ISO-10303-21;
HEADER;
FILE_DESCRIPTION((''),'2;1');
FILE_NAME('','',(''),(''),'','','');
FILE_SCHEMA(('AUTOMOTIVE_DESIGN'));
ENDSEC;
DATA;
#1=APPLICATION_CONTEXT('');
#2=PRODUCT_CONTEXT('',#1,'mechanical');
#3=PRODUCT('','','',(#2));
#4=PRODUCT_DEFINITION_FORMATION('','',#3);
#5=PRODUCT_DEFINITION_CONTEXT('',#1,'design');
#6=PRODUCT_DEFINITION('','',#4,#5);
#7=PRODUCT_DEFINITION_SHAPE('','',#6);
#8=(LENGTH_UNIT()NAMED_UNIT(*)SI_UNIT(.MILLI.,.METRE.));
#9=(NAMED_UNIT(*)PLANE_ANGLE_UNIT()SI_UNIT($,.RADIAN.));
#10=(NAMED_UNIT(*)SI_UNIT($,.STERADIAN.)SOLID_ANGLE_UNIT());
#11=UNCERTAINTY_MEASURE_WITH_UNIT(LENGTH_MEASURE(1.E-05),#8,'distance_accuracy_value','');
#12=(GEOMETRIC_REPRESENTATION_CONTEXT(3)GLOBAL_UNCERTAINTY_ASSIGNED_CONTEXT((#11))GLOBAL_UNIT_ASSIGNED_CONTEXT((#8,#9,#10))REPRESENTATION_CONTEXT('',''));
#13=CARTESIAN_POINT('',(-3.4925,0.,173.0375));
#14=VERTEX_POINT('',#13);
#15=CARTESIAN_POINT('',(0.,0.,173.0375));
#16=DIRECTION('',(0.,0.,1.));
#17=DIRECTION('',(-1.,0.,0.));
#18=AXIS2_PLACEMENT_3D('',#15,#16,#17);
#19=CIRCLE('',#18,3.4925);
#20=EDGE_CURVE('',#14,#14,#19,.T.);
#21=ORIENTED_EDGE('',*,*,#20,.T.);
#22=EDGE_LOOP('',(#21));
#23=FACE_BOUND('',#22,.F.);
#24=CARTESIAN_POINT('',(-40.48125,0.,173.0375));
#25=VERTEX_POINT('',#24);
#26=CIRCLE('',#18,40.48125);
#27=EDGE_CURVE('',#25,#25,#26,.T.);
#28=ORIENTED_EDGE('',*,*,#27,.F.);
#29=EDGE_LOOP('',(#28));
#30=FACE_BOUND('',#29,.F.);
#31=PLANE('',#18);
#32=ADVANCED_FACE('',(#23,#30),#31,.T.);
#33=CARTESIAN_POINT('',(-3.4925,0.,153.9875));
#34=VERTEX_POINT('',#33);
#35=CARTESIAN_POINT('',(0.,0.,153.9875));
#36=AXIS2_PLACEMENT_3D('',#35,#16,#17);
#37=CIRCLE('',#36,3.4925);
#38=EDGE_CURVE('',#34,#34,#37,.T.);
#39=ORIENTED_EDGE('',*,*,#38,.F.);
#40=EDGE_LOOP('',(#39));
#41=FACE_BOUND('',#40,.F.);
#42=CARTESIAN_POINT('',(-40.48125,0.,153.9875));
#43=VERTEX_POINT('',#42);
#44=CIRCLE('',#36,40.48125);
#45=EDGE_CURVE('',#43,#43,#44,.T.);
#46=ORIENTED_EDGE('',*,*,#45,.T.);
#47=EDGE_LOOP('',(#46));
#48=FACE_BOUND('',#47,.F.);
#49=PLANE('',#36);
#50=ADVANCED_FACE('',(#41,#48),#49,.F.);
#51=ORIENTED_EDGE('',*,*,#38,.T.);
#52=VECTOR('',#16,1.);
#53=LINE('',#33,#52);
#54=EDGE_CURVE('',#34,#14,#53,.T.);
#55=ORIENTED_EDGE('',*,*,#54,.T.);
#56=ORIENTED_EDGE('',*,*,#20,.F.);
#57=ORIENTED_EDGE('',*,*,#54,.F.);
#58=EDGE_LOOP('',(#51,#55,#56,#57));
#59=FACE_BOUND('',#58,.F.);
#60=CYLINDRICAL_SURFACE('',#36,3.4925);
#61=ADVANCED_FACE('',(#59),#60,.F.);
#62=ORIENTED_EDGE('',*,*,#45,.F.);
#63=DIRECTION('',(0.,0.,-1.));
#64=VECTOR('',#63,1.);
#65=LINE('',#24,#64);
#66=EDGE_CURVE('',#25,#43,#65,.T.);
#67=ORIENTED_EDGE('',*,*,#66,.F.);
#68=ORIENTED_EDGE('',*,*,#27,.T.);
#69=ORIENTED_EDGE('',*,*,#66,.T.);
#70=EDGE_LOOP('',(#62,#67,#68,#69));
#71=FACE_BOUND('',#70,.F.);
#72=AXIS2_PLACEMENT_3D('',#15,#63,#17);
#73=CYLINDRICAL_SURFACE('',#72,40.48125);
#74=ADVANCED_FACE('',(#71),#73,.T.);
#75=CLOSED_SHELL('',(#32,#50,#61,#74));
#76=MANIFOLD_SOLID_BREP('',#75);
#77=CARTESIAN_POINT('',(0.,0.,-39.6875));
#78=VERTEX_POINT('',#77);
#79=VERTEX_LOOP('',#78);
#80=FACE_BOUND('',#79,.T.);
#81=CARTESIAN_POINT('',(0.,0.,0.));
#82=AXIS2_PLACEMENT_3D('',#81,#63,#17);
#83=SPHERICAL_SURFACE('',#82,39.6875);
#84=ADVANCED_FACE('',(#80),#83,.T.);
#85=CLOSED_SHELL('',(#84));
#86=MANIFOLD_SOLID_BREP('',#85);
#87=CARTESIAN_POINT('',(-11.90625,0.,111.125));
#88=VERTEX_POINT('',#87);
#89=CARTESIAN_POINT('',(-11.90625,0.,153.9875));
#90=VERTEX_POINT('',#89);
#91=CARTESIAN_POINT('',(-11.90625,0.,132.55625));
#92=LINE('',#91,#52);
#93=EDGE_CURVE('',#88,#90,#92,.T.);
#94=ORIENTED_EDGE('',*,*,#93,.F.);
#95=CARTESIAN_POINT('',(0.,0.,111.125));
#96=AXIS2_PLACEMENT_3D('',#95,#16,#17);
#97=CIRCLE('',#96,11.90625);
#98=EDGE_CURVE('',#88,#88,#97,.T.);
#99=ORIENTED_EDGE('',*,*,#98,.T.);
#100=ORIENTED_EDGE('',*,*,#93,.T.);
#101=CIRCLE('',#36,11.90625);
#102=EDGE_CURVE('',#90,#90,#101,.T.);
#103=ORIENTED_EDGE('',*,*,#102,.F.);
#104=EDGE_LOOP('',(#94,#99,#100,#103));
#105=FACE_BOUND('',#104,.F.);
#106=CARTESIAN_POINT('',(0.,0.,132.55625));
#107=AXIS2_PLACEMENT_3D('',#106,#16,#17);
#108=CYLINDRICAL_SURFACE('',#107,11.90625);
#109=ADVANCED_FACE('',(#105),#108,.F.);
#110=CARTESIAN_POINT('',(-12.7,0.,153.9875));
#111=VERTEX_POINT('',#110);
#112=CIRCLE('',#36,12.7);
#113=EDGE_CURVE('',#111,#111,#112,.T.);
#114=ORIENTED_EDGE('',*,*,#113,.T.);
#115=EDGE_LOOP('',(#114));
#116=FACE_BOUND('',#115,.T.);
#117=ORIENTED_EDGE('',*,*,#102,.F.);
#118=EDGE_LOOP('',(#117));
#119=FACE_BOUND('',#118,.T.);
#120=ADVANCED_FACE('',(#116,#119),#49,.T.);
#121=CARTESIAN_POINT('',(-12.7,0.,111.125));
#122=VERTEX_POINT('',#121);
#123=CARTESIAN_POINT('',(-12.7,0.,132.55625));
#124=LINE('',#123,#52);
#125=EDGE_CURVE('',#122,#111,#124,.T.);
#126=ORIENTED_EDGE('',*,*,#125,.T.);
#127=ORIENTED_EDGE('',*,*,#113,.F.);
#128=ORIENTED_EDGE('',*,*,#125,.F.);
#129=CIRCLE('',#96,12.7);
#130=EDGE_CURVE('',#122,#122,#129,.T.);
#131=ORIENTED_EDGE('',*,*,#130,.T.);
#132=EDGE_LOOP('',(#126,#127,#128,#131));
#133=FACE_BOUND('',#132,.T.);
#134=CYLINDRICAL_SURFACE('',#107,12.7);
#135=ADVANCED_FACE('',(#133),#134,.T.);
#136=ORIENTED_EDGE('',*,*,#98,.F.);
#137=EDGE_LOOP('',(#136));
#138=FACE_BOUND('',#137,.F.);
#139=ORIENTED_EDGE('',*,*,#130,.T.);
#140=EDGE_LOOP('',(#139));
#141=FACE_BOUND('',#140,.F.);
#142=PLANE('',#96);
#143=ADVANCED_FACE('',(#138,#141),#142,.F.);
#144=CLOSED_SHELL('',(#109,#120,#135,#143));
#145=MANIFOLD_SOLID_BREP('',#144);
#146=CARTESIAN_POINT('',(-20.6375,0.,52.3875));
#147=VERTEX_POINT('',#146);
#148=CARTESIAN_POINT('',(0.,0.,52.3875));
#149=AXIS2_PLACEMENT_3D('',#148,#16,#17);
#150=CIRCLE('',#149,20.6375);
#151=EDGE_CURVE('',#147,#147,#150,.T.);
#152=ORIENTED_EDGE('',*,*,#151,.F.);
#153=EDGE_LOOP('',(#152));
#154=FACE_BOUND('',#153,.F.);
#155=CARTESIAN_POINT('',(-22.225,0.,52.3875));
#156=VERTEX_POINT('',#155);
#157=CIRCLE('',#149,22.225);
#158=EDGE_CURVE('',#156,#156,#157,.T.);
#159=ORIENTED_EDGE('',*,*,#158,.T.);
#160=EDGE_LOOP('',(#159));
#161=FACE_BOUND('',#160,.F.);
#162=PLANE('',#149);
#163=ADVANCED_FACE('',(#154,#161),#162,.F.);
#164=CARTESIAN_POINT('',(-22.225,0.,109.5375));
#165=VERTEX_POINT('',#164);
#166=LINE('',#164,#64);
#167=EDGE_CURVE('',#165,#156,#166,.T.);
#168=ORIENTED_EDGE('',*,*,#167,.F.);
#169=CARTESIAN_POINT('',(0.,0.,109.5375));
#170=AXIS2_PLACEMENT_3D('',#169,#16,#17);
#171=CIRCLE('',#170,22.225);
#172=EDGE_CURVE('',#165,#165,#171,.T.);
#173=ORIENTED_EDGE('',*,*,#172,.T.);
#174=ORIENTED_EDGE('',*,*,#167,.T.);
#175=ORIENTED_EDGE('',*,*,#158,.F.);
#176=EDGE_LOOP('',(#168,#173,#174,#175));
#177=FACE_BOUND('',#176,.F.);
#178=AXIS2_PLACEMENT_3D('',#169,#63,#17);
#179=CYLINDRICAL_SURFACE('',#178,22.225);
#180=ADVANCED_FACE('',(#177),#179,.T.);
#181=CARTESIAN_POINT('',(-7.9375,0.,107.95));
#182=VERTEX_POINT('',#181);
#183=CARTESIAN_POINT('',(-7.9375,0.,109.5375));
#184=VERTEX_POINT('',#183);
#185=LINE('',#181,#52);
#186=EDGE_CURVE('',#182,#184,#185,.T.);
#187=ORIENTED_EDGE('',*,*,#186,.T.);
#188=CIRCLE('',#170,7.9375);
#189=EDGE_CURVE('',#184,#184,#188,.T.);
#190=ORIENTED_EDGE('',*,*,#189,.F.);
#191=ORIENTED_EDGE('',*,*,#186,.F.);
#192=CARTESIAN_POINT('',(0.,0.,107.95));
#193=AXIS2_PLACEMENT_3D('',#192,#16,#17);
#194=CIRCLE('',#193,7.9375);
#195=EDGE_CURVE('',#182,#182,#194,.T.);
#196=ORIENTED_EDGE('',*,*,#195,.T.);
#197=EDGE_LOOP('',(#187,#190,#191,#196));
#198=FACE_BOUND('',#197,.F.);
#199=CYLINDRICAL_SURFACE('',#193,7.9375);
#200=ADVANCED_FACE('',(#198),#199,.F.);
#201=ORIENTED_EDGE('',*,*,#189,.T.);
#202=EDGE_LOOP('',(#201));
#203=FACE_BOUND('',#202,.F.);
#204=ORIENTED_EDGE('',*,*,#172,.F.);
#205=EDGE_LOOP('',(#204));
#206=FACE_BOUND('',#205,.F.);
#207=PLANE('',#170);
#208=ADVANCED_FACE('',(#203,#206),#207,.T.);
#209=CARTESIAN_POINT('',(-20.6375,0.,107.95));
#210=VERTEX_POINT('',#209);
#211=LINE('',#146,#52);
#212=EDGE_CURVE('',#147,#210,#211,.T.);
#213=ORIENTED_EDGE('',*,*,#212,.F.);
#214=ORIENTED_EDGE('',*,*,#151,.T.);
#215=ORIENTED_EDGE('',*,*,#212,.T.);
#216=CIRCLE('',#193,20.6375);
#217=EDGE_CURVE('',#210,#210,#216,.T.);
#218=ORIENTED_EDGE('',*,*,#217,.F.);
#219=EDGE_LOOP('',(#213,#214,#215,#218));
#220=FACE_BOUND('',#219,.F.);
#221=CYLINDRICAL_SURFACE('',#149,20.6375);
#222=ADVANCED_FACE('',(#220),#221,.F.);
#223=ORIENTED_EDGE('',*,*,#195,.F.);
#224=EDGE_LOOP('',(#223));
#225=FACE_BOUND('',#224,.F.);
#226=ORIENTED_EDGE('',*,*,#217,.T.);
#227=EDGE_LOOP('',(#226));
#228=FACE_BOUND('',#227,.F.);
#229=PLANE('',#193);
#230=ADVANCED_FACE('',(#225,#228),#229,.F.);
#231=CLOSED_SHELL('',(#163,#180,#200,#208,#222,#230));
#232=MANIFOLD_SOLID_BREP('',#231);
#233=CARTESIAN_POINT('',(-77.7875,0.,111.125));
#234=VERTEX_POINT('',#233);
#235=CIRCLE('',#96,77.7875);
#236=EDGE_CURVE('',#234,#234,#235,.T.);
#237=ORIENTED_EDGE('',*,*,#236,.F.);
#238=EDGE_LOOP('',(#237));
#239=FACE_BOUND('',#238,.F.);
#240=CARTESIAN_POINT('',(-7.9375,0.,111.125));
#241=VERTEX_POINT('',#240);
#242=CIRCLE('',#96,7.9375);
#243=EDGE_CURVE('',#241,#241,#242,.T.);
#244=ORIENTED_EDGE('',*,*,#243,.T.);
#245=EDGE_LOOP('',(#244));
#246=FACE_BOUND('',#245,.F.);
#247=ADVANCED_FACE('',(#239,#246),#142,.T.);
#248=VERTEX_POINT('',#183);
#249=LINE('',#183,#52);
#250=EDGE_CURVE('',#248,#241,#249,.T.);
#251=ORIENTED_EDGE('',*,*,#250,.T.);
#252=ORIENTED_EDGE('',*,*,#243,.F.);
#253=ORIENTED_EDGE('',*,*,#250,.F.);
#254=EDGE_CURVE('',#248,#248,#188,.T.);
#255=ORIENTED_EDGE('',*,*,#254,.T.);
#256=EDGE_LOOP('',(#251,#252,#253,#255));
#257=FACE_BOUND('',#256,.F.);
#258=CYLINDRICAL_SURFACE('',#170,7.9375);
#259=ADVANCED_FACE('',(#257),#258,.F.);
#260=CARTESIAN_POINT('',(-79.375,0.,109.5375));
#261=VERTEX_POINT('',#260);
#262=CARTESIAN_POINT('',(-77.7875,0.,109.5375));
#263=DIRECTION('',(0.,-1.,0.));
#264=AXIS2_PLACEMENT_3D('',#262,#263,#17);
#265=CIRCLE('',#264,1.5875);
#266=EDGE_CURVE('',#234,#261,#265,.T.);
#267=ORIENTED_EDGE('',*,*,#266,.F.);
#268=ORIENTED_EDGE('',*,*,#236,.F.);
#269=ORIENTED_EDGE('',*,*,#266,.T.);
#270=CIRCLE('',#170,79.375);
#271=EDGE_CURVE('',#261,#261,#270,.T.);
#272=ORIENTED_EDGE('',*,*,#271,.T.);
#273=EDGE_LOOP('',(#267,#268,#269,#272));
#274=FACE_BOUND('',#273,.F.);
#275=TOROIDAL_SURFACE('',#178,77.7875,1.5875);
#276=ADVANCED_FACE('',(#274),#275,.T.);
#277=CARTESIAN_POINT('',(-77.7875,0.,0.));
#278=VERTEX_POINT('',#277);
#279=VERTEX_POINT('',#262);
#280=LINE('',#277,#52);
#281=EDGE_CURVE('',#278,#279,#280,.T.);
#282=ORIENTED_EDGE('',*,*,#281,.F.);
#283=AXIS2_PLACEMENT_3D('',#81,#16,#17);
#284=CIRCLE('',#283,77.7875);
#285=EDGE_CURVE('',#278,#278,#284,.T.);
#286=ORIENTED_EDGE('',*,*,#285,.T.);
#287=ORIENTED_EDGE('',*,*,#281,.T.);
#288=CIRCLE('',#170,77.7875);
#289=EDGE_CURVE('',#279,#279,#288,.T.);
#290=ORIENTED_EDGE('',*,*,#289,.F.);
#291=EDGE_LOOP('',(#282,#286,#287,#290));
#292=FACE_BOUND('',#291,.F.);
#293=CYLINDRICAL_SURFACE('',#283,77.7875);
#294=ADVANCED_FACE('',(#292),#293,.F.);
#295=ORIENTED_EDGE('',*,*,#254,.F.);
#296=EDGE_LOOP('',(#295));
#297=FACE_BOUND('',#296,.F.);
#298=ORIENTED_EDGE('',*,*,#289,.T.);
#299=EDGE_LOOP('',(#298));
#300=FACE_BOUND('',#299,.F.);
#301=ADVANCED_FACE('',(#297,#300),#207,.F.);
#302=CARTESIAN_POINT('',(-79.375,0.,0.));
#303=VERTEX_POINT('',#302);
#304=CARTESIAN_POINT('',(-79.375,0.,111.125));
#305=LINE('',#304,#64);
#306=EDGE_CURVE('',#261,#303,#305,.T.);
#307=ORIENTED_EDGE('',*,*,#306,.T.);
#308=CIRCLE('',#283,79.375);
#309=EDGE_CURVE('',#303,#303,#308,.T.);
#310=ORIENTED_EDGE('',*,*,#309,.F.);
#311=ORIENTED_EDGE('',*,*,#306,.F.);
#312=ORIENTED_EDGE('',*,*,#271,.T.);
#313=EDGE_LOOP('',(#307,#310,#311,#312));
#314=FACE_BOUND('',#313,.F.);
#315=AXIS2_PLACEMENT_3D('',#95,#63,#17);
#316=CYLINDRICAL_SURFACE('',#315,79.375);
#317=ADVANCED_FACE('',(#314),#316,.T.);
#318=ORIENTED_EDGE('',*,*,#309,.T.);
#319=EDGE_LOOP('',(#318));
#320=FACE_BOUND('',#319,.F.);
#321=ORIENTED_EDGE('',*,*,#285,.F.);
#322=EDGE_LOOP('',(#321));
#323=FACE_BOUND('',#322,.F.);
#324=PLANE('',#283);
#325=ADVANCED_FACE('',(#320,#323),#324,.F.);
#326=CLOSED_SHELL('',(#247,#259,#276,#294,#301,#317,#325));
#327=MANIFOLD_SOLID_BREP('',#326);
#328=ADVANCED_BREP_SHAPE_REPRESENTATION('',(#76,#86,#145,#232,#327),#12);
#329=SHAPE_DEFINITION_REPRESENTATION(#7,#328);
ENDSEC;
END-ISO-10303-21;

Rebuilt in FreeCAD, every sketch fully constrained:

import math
import FreeCAD as App
import Part
import Sketcher

V = App.Vector
Q = App.Units.Quantity


def edges_at(feature, points):
    """Names of the edges that pass closest to the given points."""
    edges = feature.Shape.Edges
    near = lambda p: min(range(len(edges)), key=lambda i: edges[i].distToShape(Part.Vertex(*p))[0])
    return sorted({f"Edge{near(p) + 1}" for p in points})

doc = App.newDocument("Part")
params = doc.addObject("Spreadsheet::Sheet", "Params")
for row, (alias, value) in enumerate([
    ("sketch1_radius", "1.5625 in"),
    ("revolution_angle", "360 deg"),
    ("sketch2_width", "2.75 in"),
    ("sketch2_width2", "0.0625 in"),
    ("sketch2_height", "4.3125 in"),
    ("revolution2_angle", "360 deg"),
    ("fillet_radius", "0.0625 in"),
    ("sketch3_width", "0.5 in"),
    ("sketch3_height", "2.25 in"),
    ("sketch3_width2", "0.5625 in"),
    ("revolution3_angle", "360 deg"),
    ("sketch4_width", "0.03125 in"),
    ("sketch4_height", "1.6875 in"),
    ("revolution4_angle", "360 deg"),
    ("sketch5_height", "0.75 in"),
    ("revolution5_angle", "360 deg"),
], start=1):
    params.set(f"A{row}", alias)
    params.set(f"B{row}", "=" + value)
    params.setAlias(f"B{row}", alias)

body = doc.addObject("PartDesign::Body", "Body")

sketch1 = doc.addObject("Sketcher::SketchObject", "Sketch")
body.addObject(sketch1)
sketch1.AttachmentSupport = (doc.XZ_Plane, [""])
sketch1.MapMode = "FlatFace"
sketch1.addGeometry(Part.LineSegment(V(0, -40, 0), V(0, 40, 0)), False)
sketch1.addGeometry(Part.ArcOfCircle(Part.Circle(V(0, 0, 0), V(0, 0, 1), 40), math.radians(90), math.radians(270)), False)
sketch1.addConstraint(Sketcher.Constraint("Coincident", 0, 1, 1, 2))
sketch1.addConstraint(Sketcher.Constraint("Coincident", 1, 1, 0, 2))
sketch1.addConstraint(Sketcher.Constraint("Vertical", 0))
sketch1.addConstraint(Sketcher.Constraint("Coincident", 1, 3, -1, 1))
sketch1.addConstraint(Sketcher.Constraint("PointOnObject", 0, 1, -2))
sketch1.addConstraint(Sketcher.Constraint("Radius", 1, Q("1.5625 in")))
sketch1.setExpression("Constraints[5]", "Params.sketch1_radius")
revolution = doc.addObject("PartDesign::Revolution", "Revolution")
body.addObject(revolution)
revolution.Profile = sketch1
revolution.ReferenceAxis = (sketch1, ["V_Axis"])
revolution.setExpression("Angle", "Params.revolution_angle")
body2 = doc.addObject("PartDesign::Body", "Body001")

sketch2 = doc.addObject("Sketcher::SketchObject", "Sketch001")
body2.addObject(sketch2)
sketch2.AttachmentSupport = (doc.getObject("XZ_Plane001"), [""])
sketch2.MapMode = "FlatFace"
sketch2.addGeometry(Part.LineSegment(V(-79.4, 0, 0), V(-77.8, 0, 0)), False)
sketch2.addGeometry(Part.LineSegment(V(-77.8, 0, 0), V(-77.8, 109.5, 0)), False)
sketch2.addGeometry(Part.LineSegment(V(-77.8, 109.5, 0), V(-7.9, 109.5, 0)), False)
sketch2.addGeometry(Part.LineSegment(V(-7.9, 109.5, 0), V(-7.9, 111.1, 0)), False)
sketch2.addGeometry(Part.LineSegment(V(-7.9, 111.1, 0), V(-79.4, 111.1, 0)), False)
sketch2.addGeometry(Part.LineSegment(V(-79.4, 111.1, 0), V(-79.4, 0, 0)), False)
sketch2.addConstraint(Sketcher.Constraint("Coincident", 0, 2, 1, 1))
sketch2.addConstraint(Sketcher.Constraint("Coincident", 1, 2, 2, 1))
sketch2.addConstraint(Sketcher.Constraint("Coincident", 2, 2, 3, 1))
sketch2.addConstraint(Sketcher.Constraint("Coincident", 3, 2, 4, 1))
sketch2.addConstraint(Sketcher.Constraint("Coincident", 4, 2, 5, 1))
sketch2.addConstraint(Sketcher.Constraint("Coincident", 5, 2, 0, 1))
sketch2.addConstraint(Sketcher.Constraint("Horizontal", 0))
sketch2.addConstraint(Sketcher.Constraint("Vertical", 1))
sketch2.addConstraint(Sketcher.Constraint("Horizontal", 2))
sketch2.addConstraint(Sketcher.Constraint("Vertical", 3))
sketch2.addConstraint(Sketcher.Constraint("Horizontal", 4))
sketch2.addConstraint(Sketcher.Constraint("Vertical", 5))
sketch2.addConstraint(Sketcher.Constraint("PointOnObject", 0, 2, -1))
sketch2.addConstraint(Sketcher.Constraint("Equal", 0, 3))
sketch2.addConstraint(Sketcher.Constraint("DistanceX", 2, 1, 2, 2, Q("2.75 in")))
sketch2.addConstraint(Sketcher.Constraint("DistanceX", 0, 1, 0, 2, Q("0.0625 in")))
sketch2.addConstraint(Sketcher.Constraint("DistanceY", 1, 1, 1, 2, Q("4.3125 in")))
sketch2.addConstraint(Sketcher.Constraint("DistanceX", 0, 2, -1, 1, Q("3.0625 in")))
sketch2.setExpression("Constraints[14]", "Params.sketch2_width")
sketch2.setExpression("Constraints[15]", "Params.sketch2_width2")
sketch2.setExpression("Constraints[16]", "Params.sketch2_height")
revolution2 = doc.addObject("PartDesign::Revolution", "Revolution001")
body2.addObject(revolution2)
revolution2.Profile = sketch2
revolution2.ReferenceAxis = (sketch2, ["V_Axis"])
revolution2.setExpression("Angle", "Params.revolution2_angle")
doc.recompute()

fillet = doc.addObject("PartDesign::Fillet", "Fillet")
body2.addObject(fillet)
fillet.Base = (revolution2, edges_at(revolution2, [(79.375, 0, 111.125)]))
fillet.setExpression("Radius", "Params.fillet_radius")
body3 = doc.addObject("PartDesign::Body", "Body002")

sketch3 = doc.addObject("Sketcher::SketchObject", "Sketch002")
body3.addObject(sketch3)
sketch3.AttachmentSupport = (doc.getObject("XZ_Plane002"), [""])
sketch3.MapMode = "FlatFace"
sketch3.addGeometry(Part.LineSegment(V(-7.9, 109.5, 0), V(-22.2, 109.5, 0)), False)
sketch3.addGeometry(Part.LineSegment(V(-22.2, 109.5, 0), V(-22.2, 52.4, 0)), False)
sketch3.addGeometry(Part.LineSegment(V(-22.2, 52.4, 0), V(-20.6, 52.4, 0)), False)
sketch3.addGeometry(Part.LineSegment(V(-20.6, 52.4, 0), V(-20.6, 108, 0)), False)
sketch3.addGeometry(Part.LineSegment(V(-20.6, 108, 0), V(-7.9, 108, 0)), False)
sketch3.addGeometry(Part.LineSegment(V(-7.9, 108, 0), V(-7.9, 109.5, 0)), False)
sketch3.addConstraint(Sketcher.Constraint("Coincident", 0, 2, 1, 1))
sketch3.addConstraint(Sketcher.Constraint("Coincident", 1, 2, 2, 1))
sketch3.addConstraint(Sketcher.Constraint("Coincident", 2, 2, 3, 1))
sketch3.addConstraint(Sketcher.Constraint("Coincident", 3, 2, 4, 1))
sketch3.addConstraint(Sketcher.Constraint("Coincident", 4, 2, 5, 1))
sketch3.addConstraint(Sketcher.Constraint("Coincident", 5, 2, 0, 1))
sketch3.addConstraint(Sketcher.Constraint("Horizontal", 0))
sketch3.addConstraint(Sketcher.Constraint("Vertical", 1))
sketch3.addConstraint(Sketcher.Constraint("Horizontal", 2))
sketch3.addConstraint(Sketcher.Constraint("Vertical", 3))
sketch3.addConstraint(Sketcher.Constraint("Horizontal", 4))
sketch3.addConstraint(Sketcher.Constraint("Vertical", 5))
sketch3.addConstraint(Sketcher.Constraint("Equal", 2, 5))
sketch3.addConstraint(Sketcher.Constraint("DistanceX", 4, 1, 4, 2, Q("0.5 in")))
sketch3.addConstraint(Sketcher.Constraint("DistanceY", 1, 2, 1, 1, Q("2.25 in")))
sketch3.addConstraint(Sketcher.Constraint("DistanceX", 0, 2, 0, 1, Q("0.5625 in")))
sketch3.addConstraint(Sketcher.Constraint("DistanceY", -1, 1, 3, 2, Q("4.25 in")))
sketch3.addConstraint(Sketcher.Constraint("DistanceX", 0, 2, -1, 1, Q("0.875 in")))
sketch3.setExpression("Constraints[13]", "Params.sketch3_width")
sketch3.setExpression("Constraints[14]", "Params.sketch3_height")
sketch3.setExpression("Constraints[15]", "Params.sketch3_width2")
revolution3 = doc.addObject("PartDesign::Revolution", "Revolution002")
body3.addObject(revolution3)
revolution3.Profile = sketch3
revolution3.ReferenceAxis = (sketch3, ["V_Axis"])
revolution3.setExpression("Angle", "Params.revolution3_angle")
body4 = doc.addObject("PartDesign::Body", "Body003")

sketch4 = doc.addObject("Sketcher::SketchObject", "Sketch003")
body4.addObject(sketch4)
sketch4.AttachmentSupport = (doc.getObject("XZ_Plane003"), [""])
sketch4.MapMode = "FlatFace"
sketch4.addGeometry(Part.LineSegment(V(-12.7, 154, 0), V(-12.7, 111.1, 0)), False)
sketch4.addGeometry(Part.LineSegment(V(-12.7, 111.1, 0), V(-11.9, 111.1, 0)), False)
sketch4.addGeometry(Part.LineSegment(V(-11.9, 111.1, 0), V(-11.9, 154, 0)), False)
sketch4.addGeometry(Part.LineSegment(V(-11.9, 154, 0), V(-12.7, 154, 0)), False)
sketch4.addConstraint(Sketcher.Constraint("Coincident", 0, 2, 1, 1))
sketch4.addConstraint(Sketcher.Constraint("Coincident", 1, 2, 2, 1))
sketch4.addConstraint(Sketcher.Constraint("Coincident", 2, 2, 3, 1))
sketch4.addConstraint(Sketcher.Constraint("Coincident", 3, 2, 0, 1))
sketch4.addConstraint(Sketcher.Constraint("Vertical", 0))
sketch4.addConstraint(Sketcher.Constraint("Horizontal", 1))
sketch4.addConstraint(Sketcher.Constraint("Vertical", 2))
sketch4.addConstraint(Sketcher.Constraint("Horizontal", 3))
sketch4.addConstraint(Sketcher.Constraint("DistanceX", 0, 2, -1, 1, Q("0.5 in")))
sketch4.addConstraint(Sketcher.Constraint("DistanceX", 1, 1, 1, 2, Q("0.03125 in")))
sketch4.addConstraint(Sketcher.Constraint("DistanceY", 0, 2, 0, 1, Q("1.6875 in")))
sketch4.addConstraint(Sketcher.Constraint("DistanceY", -1, 1, 0, 2, Q("4.375 in")))
sketch4.setExpression("Constraints[9]", "Params.sketch4_width")
sketch4.setExpression("Constraints[10]", "Params.sketch4_height")
revolution4 = doc.addObject("PartDesign::Revolution", "Revolution003")
body4.addObject(revolution4)
revolution4.Profile = sketch4
revolution4.ReferenceAxis = (sketch4, ["V_Axis"])
revolution4.setExpression("Angle", "Params.revolution4_angle")
body5 = doc.addObject("PartDesign::Body", "Body004")

sketch5 = doc.addObject("Sketcher::SketchObject", "Sketch004")
body5.addObject(sketch5)
sketch5.AttachmentSupport = (doc.getObject("XZ_Plane004"), [""])
sketch5.MapMode = "FlatFace"
sketch5.addGeometry(Part.LineSegment(V(-40, 154, 0), V(-3, 154, 0)), False)
sketch5.addGeometry(Part.LineSegment(V(-3, 154, 0), V(-3, 173, 0)), False)
sketch5.addGeometry(Part.LineSegment(V(-3, 173, 0), V(-40, 173, 0)), False)
sketch5.addGeometry(Part.LineSegment(V(-40, 173, 0), V(-40, 154, 0)), False)
sketch5.addConstraint(Sketcher.Constraint("Coincident", 0, 2, 1, 1))
sketch5.addConstraint(Sketcher.Constraint("Coincident", 1, 2, 2, 1))
sketch5.addConstraint(Sketcher.Constraint("Coincident", 2, 2, 3, 1))
sketch5.addConstraint(Sketcher.Constraint("Coincident", 3, 2, 0, 1))
sketch5.addConstraint(Sketcher.Constraint("Horizontal", 0))
sketch5.addConstraint(Sketcher.Constraint("Vertical", 1))
sketch5.addConstraint(Sketcher.Constraint("Horizontal", 2))
sketch5.addConstraint(Sketcher.Constraint("Vertical", 3))
sketch5.addConstraint(Sketcher.Constraint("DistanceY", 1, 1, 1, 2, Q("0.75 in")))
sketch5.addConstraint(Sketcher.Constraint("DistanceY", -1, 1, 0, 2, Q("6.0625 in")))
sketch5.addConstraint(Sketcher.Constraint("DistanceX", 2, 2, -1, 1, Q("1.59375 in")))
sketch5.addConstraint(Sketcher.Constraint("DistanceX", 0, 2, -1, 1, Q("0.1375 in")))
sketch5.setExpression("Constraints[8]", "Params.sketch5_height")
revolution5 = doc.addObject("PartDesign::Revolution", "Revolution004")
body5.addObject(revolution5)
revolution5.Profile = sketch5
revolution5.ReferenceAxis = (sketch5, ["V_Axis"])
revolution5.setExpression("Angle", "Params.revolution5_angle")

doc.recompute()
